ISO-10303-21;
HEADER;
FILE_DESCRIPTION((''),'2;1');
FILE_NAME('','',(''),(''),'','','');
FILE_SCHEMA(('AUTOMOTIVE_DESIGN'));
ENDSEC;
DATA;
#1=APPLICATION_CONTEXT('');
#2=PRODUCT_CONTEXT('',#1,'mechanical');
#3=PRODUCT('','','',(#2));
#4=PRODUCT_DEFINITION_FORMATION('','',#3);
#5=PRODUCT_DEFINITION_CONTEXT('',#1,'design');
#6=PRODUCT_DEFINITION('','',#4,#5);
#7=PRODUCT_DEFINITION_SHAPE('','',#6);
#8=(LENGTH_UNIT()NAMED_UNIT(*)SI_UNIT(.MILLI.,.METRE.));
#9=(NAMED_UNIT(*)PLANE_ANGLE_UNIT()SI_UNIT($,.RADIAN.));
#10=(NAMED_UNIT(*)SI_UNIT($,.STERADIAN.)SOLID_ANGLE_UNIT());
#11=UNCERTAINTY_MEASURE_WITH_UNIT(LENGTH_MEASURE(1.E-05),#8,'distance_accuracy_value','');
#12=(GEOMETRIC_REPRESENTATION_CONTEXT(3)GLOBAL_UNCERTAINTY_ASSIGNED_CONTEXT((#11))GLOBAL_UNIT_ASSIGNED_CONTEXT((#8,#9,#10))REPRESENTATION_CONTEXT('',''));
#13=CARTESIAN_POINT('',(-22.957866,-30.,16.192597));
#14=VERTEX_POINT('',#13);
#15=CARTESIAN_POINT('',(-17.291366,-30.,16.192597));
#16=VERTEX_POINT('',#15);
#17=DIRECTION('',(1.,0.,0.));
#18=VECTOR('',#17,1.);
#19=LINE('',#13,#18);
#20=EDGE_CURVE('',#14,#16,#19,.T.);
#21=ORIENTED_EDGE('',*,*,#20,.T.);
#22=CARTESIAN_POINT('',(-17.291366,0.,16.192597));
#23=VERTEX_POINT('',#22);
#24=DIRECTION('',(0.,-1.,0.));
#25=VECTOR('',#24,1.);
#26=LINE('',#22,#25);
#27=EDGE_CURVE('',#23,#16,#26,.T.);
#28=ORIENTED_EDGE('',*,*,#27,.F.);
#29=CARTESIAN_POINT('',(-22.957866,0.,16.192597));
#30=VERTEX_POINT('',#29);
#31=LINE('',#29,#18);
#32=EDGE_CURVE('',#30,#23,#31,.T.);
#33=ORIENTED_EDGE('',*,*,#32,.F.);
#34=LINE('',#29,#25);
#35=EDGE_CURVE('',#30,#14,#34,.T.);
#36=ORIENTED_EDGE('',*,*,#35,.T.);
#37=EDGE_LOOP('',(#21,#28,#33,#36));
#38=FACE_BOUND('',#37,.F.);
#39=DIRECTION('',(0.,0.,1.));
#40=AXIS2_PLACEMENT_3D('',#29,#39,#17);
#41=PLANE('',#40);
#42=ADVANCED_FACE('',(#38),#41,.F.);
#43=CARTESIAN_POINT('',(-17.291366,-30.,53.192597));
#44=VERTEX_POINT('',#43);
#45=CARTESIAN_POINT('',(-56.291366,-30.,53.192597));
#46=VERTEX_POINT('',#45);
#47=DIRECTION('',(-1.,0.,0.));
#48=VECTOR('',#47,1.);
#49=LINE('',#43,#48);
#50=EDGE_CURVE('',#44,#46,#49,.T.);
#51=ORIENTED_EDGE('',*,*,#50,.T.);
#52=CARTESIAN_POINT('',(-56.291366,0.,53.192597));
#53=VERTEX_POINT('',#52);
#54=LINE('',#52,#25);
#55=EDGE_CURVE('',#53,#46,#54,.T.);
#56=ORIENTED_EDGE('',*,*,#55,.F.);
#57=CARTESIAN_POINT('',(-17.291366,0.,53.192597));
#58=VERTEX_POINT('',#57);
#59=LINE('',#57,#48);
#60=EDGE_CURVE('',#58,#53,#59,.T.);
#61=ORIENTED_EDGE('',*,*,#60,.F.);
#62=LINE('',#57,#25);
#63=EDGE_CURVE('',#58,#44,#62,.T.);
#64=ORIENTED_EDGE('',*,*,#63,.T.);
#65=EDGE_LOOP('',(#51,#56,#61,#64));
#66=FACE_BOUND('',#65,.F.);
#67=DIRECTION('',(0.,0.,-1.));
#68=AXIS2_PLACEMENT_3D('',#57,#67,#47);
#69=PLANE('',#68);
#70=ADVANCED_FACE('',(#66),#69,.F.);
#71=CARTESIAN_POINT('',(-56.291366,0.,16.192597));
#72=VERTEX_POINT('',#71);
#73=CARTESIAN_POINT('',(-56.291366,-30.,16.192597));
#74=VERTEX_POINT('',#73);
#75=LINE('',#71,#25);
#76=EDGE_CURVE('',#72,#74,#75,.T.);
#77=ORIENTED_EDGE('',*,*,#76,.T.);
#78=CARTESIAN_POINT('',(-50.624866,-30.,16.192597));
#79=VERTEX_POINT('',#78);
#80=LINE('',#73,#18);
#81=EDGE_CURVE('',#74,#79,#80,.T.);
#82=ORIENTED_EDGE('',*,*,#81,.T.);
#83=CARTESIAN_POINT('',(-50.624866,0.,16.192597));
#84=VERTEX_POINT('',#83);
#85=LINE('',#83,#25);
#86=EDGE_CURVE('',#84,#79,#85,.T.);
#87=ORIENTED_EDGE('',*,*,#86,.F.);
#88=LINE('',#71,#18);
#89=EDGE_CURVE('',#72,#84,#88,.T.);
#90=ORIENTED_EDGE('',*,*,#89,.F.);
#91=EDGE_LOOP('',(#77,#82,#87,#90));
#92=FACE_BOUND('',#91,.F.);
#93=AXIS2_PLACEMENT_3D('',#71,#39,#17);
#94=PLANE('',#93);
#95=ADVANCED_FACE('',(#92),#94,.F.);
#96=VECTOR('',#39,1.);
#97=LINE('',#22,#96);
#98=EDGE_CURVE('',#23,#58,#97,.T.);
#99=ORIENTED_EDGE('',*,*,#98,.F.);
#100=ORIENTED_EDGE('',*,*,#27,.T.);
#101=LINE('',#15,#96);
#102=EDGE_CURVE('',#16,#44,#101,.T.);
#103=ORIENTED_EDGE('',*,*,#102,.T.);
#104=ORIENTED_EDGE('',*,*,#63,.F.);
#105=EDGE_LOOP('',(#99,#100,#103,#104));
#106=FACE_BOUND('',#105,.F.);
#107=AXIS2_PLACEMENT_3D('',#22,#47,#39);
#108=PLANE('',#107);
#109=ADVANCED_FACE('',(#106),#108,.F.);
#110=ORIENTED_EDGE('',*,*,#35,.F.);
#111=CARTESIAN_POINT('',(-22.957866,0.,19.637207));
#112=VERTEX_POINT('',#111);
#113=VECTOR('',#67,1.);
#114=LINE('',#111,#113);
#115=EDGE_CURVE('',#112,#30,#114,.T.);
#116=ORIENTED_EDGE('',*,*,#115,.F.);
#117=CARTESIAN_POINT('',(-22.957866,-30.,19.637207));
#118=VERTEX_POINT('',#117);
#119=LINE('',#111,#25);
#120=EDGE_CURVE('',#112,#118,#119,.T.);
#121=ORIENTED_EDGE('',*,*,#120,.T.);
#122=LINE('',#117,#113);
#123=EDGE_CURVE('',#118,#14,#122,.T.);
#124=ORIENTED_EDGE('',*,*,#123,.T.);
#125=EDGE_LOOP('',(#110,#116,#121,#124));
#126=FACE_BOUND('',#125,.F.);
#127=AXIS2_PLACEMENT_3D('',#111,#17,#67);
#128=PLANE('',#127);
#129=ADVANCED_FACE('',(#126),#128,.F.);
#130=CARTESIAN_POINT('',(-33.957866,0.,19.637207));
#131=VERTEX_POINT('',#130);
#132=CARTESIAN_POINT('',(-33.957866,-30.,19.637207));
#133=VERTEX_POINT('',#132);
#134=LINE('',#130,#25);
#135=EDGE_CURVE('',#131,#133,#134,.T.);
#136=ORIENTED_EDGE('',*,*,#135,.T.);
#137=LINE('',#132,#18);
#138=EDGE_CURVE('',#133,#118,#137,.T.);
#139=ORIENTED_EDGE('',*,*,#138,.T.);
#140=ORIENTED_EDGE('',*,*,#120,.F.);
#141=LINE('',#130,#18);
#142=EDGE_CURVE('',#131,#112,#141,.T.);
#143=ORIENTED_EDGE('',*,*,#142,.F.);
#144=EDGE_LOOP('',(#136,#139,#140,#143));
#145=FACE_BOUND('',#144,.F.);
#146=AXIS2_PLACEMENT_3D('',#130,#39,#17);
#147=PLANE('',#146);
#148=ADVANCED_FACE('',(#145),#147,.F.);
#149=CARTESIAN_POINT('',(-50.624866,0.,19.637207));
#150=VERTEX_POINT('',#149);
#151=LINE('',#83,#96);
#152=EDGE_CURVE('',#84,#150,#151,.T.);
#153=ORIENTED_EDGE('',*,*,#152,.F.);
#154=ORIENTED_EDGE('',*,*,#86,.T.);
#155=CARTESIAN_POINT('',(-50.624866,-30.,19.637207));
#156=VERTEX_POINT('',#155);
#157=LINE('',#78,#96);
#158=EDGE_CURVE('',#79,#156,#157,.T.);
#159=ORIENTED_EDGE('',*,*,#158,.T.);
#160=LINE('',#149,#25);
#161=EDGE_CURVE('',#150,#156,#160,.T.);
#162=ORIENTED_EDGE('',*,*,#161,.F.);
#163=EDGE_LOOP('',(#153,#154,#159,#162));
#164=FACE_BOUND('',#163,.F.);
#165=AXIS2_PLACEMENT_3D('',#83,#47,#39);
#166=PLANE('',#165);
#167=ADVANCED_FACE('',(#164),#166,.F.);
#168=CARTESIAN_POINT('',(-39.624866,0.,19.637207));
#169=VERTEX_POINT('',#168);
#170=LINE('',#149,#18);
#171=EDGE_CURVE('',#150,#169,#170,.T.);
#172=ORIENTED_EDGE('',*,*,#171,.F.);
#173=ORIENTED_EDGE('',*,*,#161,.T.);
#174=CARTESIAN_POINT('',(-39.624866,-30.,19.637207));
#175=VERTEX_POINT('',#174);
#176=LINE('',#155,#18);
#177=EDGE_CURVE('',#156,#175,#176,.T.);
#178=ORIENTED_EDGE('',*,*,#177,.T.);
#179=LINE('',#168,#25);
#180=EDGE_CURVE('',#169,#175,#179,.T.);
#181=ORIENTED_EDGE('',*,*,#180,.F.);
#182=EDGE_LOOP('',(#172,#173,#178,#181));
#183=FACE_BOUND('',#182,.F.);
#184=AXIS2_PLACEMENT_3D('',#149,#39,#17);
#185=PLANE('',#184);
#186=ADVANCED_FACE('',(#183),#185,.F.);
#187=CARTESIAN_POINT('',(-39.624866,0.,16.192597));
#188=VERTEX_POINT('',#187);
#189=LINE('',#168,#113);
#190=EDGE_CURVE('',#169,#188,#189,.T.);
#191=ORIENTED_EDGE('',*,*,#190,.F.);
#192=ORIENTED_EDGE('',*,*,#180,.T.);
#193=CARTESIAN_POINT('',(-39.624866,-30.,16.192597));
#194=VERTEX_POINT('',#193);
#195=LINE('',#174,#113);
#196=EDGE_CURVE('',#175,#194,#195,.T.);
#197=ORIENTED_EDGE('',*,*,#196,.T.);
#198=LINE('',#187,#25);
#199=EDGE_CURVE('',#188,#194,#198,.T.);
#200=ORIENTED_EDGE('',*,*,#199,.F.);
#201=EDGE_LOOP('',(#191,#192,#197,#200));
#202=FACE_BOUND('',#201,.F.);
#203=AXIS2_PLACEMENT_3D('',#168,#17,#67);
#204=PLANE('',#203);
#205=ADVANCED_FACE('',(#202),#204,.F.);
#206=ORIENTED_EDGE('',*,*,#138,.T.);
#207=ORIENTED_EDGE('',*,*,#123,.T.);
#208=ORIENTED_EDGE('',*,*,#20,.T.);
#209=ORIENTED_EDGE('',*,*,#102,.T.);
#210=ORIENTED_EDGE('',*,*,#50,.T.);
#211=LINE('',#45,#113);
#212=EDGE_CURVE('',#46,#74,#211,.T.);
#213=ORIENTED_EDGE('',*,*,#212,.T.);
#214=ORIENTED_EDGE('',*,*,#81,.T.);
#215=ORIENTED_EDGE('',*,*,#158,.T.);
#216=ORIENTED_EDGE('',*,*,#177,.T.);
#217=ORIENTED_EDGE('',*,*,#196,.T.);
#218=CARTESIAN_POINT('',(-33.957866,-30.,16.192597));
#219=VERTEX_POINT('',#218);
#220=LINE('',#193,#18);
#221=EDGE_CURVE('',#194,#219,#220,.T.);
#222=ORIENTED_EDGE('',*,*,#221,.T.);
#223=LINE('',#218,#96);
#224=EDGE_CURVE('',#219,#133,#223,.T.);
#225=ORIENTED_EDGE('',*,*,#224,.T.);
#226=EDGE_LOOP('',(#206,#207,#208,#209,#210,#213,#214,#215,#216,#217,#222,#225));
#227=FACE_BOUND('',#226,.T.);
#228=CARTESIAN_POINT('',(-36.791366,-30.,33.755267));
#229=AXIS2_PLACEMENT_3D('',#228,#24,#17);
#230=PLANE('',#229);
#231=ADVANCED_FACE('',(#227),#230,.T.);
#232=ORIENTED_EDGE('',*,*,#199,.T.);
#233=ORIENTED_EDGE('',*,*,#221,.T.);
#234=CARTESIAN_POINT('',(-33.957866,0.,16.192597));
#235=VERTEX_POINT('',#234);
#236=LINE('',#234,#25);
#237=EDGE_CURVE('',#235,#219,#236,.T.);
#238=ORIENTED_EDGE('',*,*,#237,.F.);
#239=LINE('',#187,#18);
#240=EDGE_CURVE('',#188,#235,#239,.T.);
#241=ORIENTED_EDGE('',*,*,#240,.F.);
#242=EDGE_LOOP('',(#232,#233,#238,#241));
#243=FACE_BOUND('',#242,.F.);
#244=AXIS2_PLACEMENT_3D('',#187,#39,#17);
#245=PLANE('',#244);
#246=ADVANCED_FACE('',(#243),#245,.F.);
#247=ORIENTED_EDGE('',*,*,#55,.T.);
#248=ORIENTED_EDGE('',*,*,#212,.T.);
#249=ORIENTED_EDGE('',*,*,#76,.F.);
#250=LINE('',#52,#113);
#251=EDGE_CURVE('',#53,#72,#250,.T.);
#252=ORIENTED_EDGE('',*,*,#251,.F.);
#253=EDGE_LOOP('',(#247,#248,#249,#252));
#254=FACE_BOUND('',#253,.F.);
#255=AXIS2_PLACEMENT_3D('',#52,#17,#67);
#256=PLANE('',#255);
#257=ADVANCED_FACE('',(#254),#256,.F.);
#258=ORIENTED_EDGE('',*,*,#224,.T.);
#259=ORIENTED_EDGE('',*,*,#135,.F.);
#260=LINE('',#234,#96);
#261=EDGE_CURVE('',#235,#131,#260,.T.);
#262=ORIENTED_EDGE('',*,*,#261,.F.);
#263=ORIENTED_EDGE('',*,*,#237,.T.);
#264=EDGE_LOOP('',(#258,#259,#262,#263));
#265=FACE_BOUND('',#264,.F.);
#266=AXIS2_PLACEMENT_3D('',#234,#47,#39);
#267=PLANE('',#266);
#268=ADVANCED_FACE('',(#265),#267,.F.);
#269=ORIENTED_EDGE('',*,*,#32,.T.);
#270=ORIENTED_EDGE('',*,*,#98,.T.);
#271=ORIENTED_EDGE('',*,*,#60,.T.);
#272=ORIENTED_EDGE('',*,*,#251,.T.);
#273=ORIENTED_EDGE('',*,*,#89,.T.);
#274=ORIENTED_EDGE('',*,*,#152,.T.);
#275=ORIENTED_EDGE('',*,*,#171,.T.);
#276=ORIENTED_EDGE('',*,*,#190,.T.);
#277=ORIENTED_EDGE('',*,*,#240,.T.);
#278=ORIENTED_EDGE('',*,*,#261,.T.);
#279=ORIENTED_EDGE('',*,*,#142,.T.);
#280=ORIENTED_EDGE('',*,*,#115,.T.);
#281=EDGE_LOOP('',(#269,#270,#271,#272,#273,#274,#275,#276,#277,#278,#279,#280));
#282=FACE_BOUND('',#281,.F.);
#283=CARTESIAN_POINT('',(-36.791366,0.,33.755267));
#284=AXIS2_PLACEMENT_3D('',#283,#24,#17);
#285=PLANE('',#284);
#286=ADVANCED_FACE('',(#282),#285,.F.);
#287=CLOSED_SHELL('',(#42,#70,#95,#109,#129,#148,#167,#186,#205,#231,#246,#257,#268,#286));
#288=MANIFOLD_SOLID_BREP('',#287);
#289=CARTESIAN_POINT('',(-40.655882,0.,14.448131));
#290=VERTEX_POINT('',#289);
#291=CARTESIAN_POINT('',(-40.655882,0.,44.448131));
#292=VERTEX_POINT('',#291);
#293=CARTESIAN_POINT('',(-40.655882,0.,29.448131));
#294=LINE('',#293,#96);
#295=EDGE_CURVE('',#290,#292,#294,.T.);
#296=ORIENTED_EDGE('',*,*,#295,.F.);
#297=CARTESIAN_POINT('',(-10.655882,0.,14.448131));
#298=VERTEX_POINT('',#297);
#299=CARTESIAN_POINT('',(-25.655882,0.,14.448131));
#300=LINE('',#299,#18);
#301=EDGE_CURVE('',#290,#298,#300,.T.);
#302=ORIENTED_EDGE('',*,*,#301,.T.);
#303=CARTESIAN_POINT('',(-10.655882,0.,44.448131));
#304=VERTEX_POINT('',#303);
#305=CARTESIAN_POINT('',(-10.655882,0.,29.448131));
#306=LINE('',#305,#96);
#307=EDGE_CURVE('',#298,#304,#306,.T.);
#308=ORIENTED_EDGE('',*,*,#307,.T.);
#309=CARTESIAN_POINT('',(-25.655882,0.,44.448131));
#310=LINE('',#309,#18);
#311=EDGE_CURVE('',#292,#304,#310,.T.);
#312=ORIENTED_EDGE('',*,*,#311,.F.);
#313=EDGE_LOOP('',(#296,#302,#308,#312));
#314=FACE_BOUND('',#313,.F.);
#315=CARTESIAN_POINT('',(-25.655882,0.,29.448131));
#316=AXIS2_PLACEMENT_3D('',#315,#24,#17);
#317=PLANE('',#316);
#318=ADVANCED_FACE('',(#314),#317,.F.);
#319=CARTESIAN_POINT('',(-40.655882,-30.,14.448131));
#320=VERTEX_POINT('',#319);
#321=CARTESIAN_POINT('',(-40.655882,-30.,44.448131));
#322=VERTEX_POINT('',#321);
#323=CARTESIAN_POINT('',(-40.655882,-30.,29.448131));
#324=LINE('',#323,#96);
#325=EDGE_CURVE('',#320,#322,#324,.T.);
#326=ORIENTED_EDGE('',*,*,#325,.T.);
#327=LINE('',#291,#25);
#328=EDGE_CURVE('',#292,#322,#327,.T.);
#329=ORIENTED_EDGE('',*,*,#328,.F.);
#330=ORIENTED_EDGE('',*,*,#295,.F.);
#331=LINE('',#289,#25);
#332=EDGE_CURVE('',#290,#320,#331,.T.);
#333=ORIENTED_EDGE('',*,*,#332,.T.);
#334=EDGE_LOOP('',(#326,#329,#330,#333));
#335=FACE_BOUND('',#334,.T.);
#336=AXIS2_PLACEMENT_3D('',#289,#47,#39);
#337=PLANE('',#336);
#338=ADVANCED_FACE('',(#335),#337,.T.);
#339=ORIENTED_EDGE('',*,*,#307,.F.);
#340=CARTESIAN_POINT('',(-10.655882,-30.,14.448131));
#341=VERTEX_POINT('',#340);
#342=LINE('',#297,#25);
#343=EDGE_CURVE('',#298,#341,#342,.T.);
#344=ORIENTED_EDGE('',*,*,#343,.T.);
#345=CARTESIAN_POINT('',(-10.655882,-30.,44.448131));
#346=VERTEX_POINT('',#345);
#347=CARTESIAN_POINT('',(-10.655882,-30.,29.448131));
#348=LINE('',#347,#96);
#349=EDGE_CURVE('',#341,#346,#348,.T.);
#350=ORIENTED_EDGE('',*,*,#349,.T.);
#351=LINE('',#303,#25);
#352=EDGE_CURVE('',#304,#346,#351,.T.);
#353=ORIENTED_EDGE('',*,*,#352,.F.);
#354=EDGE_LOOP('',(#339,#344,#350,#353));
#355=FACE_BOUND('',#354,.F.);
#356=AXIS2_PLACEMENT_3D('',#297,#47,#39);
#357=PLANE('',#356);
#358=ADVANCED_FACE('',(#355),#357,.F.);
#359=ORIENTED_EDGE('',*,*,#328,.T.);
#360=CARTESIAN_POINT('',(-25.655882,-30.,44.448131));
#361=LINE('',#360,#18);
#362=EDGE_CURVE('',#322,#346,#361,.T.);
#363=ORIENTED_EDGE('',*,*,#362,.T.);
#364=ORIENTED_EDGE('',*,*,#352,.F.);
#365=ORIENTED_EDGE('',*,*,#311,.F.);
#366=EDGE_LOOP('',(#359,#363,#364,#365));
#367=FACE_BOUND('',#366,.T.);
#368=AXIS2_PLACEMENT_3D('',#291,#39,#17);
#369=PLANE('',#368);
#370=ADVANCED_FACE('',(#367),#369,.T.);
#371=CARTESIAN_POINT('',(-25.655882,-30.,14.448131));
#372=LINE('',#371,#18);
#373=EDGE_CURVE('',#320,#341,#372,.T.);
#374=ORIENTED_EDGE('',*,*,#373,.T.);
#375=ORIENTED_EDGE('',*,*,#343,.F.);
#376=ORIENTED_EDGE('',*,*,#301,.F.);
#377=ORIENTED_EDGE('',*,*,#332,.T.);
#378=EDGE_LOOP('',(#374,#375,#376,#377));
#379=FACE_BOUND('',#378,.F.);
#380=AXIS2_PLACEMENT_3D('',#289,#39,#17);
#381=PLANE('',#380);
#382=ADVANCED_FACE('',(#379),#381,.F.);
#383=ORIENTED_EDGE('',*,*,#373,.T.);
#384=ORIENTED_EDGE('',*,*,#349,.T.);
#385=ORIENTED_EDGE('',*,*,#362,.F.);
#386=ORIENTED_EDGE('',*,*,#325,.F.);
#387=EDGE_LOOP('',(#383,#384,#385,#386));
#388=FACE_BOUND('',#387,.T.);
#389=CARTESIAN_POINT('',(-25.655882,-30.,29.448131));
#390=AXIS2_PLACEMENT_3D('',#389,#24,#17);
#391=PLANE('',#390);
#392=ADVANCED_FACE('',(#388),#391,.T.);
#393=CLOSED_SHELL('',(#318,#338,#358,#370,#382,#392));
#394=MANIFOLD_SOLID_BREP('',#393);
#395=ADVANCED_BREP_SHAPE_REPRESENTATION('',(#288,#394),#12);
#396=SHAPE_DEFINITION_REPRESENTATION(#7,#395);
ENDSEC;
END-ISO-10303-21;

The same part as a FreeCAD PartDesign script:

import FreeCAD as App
import Part
import Sketcher
from FreeCAD import Vector
Q = App.Units.Quantity


def add_polygon(sketch, points):
    """Adds a closed chain of lines whose ends are joined by coincident constraints."""
    first, n = sketch.GeometryCount, len(points)
    for a, b in zip(points, points[1:] + points[:1]):
        sketch.addGeometry(Part.LineSegment(App.Vector(*a, 0), App.Vector(*b, 0)), False)
    for i in range(n):
        sketch.addConstraint(Sketcher.Constraint("Coincident", first + i, 2, first + (i + 1) % n, 1))

doc = App.newDocument("Part")
body = doc.addObject("PartDesign::Body", "Body")

# Sketch on XZ plane
sketch1 = body.newObject("Sketcher::SketchObject", "Sketch")
sketch1.AttachmentSupport = (doc.getObject("XZ_Plane"), [""])
sketch1.MapMode = "FlatFace"
add_polygon(sketch1, [(-56.3, 53.2), (-56.3, 16.2), (-50.6, 16.2), (-50.6, 19.6), (-39.6, 19.6), (-39.6, 16.2), (-34, 16.2), (-34, 19.6), (-23, 19.6), (-23, 16.2), (-17.3, 16.2), (-17.3, 53.2)])  # lines 0-11
sketch1.addConstraint(Sketcher.Constraint("Vertical", 0))
sketch1.addConstraint(Sketcher.Constraint("Horizontal", 1))
sketch1.addConstraint(Sketcher.Constraint("Vertical", 2))
sketch1.addConstraint(Sketcher.Constraint("Horizontal", 3))
sketch1.addConstraint(Sketcher.Constraint("Vertical", 4))
sketch1.addConstraint(Sketcher.Constraint("Horizontal", 5))
sketch1.addConstraint(Sketcher.Constraint("Vertical", 6))
sketch1.addConstraint(Sketcher.Constraint("Horizontal", 7))
sketch1.addConstraint(Sketcher.Constraint("Vertical", 8))
sketch1.addConstraint(Sketcher.Constraint("Horizontal", 9))
sketch1.addConstraint(Sketcher.Constraint("Vertical", 10))
sketch1.addConstraint(Sketcher.Constraint("Horizontal", 11))
sketch1.addConstraint(Sketcher.Constraint("Horizontal", 1, 2, 4, 2))
sketch1.addConstraint(Sketcher.Constraint("Horizontal", 3, 2, 6, 2))
sketch1.addConstraint(Sketcher.Constraint("Horizontal", 5, 2, 8, 2))
sketch1.addConstraint(Sketcher.Constraint("Equal", 3, 7))
sketch1.addConstraint(Sketcher.Constraint("Equal", 1, 9))
sketch1.addConstraint(Sketcher.Constraint("DistanceX", 3, 1, 3, 2, Q("11 mm")))
sketch1.addConstraint(Sketcher.Constraint("DistanceX", 11, 2, 11, 1, Q("39 mm")))
sketch1.addConstraint(Sketcher.Constraint("DistanceY", 0, 2, 0, 1, Q("37 mm")))
sketch1.addConstraint(Sketcher.Constraint("DistanceX", 5, 1, 5, 2, Q("5.667 mm")))
sketch1.addConstraint(Sketcher.Constraint("DistanceY", 2, 1, 2, 2, Q("3.44461 mm")))
sketch1.addConstraint(Sketcher.Constraint("DistanceX", 0, 2, -1, 1, Q("56.291366 mm")))
sketch1.addConstraint(Sketcher.Constraint("DistanceY", -1, 1, 0, 2, Q("16.192597 mm")))
pad1 = body.newObject("PartDesign::Pad", "Pad")
pad1.Profile = sketch1
pad1.Length = 30
body2 = doc.addObject("PartDesign::Body", "Body001")

# Sketch on XZ plane
sketch2 = body2.newObject("Sketcher::SketchObject", "Sketch001")
sketch2.AttachmentSupport = (doc.getObject("XZ_Plane001"), [""])
sketch2.MapMode = "FlatFace"
add_polygon(sketch2, [(-41, 44), (-41, 14), (-11, 14), (-11, 44)])  # lines 0-3
sketch2.addConstraint(Sketcher.Constraint("Vertical", 0))
sketch2.addConstraint(Sketcher.Constraint("Horizontal", 1))
sketch2.addConstraint(Sketcher.Constraint("Vertical", 2))
sketch2.addConstraint(Sketcher.Constraint("Horizontal", 3))
sketch2.addConstraint(Sketcher.Constraint("Equal", 3, 0))
sketch2.addConstraint(Sketcher.Constraint("DistanceX", 1, 1, 1, 2, Q("30 mm")))
sketch2.addConstraint(Sketcher.Constraint("DistanceX", 0, 2, -1, 1, Q("40.655882 mm")))
sketch2.addConstraint(Sketcher.Constraint("DistanceY", -1, 1, 0, 2, Q("14.448131 mm")))
pad2 = body2.newObject("PartDesign::Pad", "Pad001")
pad2.Profile = sketch2
pad2.Length = 30

doc.recompute()
